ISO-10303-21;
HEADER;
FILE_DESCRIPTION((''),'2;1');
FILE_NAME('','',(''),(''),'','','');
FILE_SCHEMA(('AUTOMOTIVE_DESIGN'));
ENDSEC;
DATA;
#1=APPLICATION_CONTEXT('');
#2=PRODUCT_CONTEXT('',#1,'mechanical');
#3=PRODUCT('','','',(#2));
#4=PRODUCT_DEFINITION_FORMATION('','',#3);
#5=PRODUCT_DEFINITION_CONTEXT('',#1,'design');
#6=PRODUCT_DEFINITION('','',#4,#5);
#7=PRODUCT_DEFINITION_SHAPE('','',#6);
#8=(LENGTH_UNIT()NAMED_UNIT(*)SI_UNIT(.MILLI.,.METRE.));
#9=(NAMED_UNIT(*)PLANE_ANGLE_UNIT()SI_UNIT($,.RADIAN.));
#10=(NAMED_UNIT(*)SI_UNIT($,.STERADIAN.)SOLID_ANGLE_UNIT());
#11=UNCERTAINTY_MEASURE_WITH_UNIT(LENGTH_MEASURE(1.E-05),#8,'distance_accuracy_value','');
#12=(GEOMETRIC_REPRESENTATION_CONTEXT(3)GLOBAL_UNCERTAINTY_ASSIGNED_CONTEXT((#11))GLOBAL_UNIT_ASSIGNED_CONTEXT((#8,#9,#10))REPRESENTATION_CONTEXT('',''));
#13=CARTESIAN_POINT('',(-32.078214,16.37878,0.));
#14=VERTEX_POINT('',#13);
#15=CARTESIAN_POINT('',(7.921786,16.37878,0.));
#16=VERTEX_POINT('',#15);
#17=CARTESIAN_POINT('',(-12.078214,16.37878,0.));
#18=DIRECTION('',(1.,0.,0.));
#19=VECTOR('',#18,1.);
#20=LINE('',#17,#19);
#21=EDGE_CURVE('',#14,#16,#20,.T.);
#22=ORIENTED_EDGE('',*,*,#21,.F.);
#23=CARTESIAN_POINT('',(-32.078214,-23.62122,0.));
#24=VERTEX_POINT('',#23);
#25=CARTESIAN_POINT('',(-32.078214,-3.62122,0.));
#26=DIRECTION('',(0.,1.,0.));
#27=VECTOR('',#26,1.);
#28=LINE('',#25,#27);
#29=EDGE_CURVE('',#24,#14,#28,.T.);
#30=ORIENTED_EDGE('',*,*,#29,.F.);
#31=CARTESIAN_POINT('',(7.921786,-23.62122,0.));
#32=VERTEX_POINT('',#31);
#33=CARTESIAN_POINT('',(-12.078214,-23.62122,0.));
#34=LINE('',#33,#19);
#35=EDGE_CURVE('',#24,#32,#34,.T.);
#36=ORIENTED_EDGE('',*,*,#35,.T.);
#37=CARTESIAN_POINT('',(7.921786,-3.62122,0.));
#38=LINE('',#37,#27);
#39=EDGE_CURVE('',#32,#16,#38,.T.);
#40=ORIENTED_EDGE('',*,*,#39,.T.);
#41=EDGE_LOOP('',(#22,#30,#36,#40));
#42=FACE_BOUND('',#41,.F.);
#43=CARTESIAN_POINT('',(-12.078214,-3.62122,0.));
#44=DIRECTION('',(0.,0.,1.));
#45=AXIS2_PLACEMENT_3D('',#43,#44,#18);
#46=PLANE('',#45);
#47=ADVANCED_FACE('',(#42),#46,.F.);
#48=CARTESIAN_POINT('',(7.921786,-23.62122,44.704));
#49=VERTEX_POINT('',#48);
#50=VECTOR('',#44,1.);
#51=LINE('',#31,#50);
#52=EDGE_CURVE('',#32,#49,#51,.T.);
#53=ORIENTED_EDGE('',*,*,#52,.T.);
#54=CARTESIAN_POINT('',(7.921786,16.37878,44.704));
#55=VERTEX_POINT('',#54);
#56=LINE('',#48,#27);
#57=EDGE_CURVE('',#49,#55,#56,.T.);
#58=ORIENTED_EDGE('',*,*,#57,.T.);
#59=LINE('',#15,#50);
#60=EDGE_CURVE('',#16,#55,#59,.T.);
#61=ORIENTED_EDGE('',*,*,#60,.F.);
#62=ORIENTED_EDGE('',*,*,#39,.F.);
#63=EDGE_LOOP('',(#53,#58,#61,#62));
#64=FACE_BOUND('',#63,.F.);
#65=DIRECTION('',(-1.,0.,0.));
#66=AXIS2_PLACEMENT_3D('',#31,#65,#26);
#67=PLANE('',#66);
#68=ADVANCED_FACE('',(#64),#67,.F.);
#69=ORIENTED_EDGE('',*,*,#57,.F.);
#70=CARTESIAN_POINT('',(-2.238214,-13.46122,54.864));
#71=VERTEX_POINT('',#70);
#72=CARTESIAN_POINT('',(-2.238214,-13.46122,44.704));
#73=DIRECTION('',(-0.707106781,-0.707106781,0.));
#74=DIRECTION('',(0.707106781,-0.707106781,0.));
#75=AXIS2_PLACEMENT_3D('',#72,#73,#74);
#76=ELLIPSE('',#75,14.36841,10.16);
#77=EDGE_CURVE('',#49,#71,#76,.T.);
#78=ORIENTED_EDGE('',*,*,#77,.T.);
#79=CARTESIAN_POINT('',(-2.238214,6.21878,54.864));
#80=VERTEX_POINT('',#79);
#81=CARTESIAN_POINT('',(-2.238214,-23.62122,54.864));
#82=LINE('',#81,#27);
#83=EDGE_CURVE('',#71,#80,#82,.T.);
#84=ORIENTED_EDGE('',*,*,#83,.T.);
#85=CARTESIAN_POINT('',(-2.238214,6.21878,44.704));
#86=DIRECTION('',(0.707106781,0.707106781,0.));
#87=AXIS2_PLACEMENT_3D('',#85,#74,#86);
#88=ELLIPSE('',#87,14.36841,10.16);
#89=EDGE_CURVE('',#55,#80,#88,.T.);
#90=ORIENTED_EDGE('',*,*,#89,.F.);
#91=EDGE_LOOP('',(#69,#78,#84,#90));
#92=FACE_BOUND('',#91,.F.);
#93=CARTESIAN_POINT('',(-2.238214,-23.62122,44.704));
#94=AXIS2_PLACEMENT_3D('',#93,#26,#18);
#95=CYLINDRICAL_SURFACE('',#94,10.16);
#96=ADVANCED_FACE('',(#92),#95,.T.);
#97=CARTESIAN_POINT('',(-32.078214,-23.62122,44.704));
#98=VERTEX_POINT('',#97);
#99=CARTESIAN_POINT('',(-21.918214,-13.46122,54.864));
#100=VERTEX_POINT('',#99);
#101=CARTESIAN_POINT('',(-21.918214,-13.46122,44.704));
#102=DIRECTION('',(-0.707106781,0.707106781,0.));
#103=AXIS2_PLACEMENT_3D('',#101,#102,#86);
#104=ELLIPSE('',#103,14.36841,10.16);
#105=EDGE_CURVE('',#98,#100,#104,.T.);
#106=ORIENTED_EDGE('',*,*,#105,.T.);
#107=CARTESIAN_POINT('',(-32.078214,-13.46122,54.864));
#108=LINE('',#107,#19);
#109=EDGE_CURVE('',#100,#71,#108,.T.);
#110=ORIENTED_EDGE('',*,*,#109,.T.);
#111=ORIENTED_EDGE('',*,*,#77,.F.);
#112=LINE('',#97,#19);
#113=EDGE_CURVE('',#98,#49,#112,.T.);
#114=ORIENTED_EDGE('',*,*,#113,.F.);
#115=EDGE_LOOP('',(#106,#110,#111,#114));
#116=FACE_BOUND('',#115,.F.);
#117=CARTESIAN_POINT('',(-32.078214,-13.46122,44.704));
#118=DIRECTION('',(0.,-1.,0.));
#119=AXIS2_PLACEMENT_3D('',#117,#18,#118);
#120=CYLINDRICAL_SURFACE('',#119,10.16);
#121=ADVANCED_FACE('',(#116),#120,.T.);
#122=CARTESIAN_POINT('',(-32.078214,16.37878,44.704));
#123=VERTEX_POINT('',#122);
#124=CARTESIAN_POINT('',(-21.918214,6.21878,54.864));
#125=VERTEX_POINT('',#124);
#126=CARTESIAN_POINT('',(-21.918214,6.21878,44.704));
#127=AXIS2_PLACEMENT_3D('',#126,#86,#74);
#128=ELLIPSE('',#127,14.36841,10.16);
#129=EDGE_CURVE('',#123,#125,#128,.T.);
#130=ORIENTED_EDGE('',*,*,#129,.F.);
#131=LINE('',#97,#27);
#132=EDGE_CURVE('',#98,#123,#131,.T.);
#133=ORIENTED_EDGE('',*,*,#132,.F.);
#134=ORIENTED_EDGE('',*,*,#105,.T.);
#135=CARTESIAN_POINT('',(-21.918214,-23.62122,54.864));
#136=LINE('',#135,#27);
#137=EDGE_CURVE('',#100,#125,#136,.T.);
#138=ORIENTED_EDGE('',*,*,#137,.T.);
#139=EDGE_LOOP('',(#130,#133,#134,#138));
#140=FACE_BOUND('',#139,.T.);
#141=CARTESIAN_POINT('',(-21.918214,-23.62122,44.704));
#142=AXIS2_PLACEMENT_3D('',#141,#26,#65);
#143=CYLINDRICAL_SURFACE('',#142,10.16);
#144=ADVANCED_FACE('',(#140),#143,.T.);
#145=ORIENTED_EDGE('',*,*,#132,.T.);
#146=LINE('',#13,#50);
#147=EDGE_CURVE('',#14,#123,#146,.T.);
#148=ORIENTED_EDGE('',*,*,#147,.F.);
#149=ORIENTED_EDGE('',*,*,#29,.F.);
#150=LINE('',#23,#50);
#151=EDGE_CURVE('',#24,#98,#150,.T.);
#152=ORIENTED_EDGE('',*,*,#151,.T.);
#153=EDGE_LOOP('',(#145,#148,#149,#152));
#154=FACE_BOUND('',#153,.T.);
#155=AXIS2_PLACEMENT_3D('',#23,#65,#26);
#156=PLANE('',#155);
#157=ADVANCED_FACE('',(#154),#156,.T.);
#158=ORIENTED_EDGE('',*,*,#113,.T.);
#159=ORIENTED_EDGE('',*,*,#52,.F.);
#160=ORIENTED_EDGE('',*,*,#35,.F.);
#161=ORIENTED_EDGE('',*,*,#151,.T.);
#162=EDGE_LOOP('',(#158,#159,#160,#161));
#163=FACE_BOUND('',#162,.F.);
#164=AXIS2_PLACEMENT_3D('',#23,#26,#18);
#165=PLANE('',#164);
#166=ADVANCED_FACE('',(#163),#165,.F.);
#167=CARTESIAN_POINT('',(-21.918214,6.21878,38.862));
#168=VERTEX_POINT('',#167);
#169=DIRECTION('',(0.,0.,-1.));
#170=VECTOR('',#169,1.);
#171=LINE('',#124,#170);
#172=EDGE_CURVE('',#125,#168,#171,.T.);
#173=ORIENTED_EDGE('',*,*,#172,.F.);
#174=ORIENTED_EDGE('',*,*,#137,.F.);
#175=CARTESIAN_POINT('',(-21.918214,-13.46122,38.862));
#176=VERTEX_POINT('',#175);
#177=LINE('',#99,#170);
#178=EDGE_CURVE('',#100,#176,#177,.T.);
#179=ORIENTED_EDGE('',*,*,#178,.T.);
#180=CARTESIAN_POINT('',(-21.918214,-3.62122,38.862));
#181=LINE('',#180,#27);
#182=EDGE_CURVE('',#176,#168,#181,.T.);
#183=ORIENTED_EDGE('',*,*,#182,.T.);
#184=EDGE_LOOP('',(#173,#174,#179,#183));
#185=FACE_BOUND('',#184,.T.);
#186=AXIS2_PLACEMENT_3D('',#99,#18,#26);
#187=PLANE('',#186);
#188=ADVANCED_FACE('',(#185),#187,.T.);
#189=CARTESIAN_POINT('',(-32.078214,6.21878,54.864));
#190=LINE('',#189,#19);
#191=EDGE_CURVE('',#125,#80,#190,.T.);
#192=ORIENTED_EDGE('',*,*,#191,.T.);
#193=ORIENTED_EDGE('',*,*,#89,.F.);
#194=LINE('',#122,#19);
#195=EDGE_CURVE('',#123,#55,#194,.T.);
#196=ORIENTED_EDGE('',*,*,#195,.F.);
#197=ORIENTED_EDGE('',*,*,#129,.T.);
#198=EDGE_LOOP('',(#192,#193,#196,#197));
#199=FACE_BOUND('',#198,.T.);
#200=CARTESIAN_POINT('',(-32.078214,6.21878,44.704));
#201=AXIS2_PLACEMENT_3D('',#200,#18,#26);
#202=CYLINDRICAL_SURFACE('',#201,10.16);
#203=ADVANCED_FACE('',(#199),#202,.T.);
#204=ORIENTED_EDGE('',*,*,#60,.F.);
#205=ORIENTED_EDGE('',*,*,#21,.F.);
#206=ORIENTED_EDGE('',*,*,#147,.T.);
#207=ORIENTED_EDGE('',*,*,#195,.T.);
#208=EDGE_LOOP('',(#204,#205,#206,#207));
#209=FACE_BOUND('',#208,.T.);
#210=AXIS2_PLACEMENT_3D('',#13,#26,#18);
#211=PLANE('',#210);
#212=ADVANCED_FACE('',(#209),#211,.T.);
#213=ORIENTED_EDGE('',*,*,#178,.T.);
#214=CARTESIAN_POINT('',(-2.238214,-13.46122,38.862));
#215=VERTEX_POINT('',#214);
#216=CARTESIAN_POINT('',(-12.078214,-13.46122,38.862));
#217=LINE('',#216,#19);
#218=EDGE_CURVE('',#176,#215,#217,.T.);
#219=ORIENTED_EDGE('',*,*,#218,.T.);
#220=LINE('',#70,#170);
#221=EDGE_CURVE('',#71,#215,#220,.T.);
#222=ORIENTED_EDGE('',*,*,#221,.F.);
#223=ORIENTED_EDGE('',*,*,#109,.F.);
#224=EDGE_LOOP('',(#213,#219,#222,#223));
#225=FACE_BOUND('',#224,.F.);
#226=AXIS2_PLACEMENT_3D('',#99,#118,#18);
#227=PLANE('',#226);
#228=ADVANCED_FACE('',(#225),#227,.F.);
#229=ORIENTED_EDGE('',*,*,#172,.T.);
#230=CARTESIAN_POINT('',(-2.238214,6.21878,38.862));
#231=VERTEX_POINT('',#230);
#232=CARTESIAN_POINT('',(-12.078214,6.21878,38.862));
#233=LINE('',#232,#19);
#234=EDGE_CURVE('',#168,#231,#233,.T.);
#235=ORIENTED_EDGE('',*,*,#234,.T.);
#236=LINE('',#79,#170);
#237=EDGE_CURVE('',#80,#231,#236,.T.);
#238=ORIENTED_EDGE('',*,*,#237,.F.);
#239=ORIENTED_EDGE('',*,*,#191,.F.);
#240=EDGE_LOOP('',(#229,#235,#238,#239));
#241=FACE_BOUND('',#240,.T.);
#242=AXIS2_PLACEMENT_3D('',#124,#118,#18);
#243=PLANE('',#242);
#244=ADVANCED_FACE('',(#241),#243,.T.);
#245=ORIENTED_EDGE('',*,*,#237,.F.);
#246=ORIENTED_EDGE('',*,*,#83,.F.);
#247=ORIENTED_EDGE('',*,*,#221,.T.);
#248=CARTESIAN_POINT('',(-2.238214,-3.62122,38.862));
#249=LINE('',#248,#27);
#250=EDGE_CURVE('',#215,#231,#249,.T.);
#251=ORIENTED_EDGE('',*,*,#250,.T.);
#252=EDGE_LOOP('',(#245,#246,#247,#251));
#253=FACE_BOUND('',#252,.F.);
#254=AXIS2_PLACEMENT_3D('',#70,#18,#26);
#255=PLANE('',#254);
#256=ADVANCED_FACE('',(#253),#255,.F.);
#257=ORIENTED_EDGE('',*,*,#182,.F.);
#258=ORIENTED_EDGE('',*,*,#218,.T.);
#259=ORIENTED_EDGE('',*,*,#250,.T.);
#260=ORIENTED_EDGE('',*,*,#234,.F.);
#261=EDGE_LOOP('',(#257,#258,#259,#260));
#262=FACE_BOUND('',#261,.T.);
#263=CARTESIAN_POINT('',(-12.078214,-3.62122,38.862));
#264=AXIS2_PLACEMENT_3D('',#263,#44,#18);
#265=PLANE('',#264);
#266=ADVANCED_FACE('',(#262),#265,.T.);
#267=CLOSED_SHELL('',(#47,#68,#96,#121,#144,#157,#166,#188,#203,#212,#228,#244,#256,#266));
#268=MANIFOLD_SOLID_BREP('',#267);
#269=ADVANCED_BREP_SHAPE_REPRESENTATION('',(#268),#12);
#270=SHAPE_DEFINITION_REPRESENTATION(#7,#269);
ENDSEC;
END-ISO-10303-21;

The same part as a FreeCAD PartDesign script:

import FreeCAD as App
import Part
import Sketcher

V = App.Vector
Q = App.Units.Quantity


def edges_at(feature, points):
    """Names of the edges that pass closest to the given points."""
    edges = feature.Shape.Edges
    near = lambda p: min(range(len(edges)), key=lambda i: edges[i].distToShape(Part.Vertex(*p))[0])
    return sorted({f"Edge{near(p) + 1}" for p in points})


def add_polygon(sketch, points):
    """Adds a closed chain of lines whose ends are joined by coincident constraints."""
    first, n = sketch.GeometryCount, len(points)
    for a, b in zip(points, points[1:] + points[:1]):
        sketch.addGeometry(Part.LineSegment(App.Vector(*a, 0), App.Vector(*b, 0)), False)
    for i in range(n):
        sketch.addConstraint(Sketcher.Constraint("Coincident", first + i, 2, first + (i + 1) % n, 1))

doc = App.newDocument("Part")
body = doc.addObject("PartDesign::Body", "Body")

# Sketch on XY plane
sketch1 = doc.addObject("Sketcher::SketchObject", "Sketch")
body.addObject(sketch1)
sketch1.AttachmentSupport = (doc.XY_Plane, [""])
sketch1.MapMode = "FlatFace"
add_polygon(sketch1, [(-32, 16), (-32, -24), (8, -24), (8, 16)])  # lines 0-3
sketch1.addConstraint(Sketcher.Constraint("Vertical", 0))
sketch1.addConstraint(Sketcher.Constraint("Horizontal", 1))
sketch1.addConstraint(Sketcher.Constraint("Vertical", 2))
sketch1.addConstraint(Sketcher.Constraint("Horizontal", 3))
sketch1.addConstraint(Sketcher.Constraint("Equal", 3, 0))
sketch1.addConstraint(Sketcher.Constraint("DistanceX", 1, 1, 1, 2, 40.0))
sketch1.addConstraint(Sketcher.Constraint("DistanceY", 0, 2, -1, 1, 23.62122))
sketch1.addConstraint(Sketcher.Constraint("DistanceX", 0, 2, -1, 1, 32.078214))
pad1 = doc.addObject("PartDesign::Pad", "Pad")
body.addObject(pad1)
pad1.Profile = sketch1
pad1.Length = Q("2.16 in")
doc.recompute()

fillet = doc.addObject("PartDesign::Fillet", "Fillet")
body.addObject(fillet)
fillet.Base = (pad1, edges_at(pad1, [
    (-12.078, -23.621, 54.864),
    (7.922, -3.621, 54.864),
    (-12.078, 16.379, 54.864),
    (-32.078, -3.621, 54.864),
]))
fillet.Radius = Q("0.4 in")

# Sketch on XY plane
sketch2 = doc.addObject("Sketcher::SketchObject", "Sketch001")
body.addObject(sketch2)
sketch2.AttachmentSupport = (doc.XY_Plane, [""])
sketch2.MapMode = "FlatFace"
sketch2.AttachmentOffset = App.Placement(V(0, 0, 2.16 * 25.4), App.Rotation())
add_polygon(sketch2, [(-22, 6), (-22, -13), (-2, -13), (-2, 6)])  # lines 0-3
sketch2.addConstraint(Sketcher.Constraint("Vertical", 0))
sketch2.addConstraint(Sketcher.Constraint("Horizontal", 1))
sketch2.addConstraint(Sketcher.Constraint("Vertical", 2))
sketch2.addConstraint(Sketcher.Constraint("Horizontal", 3))
sketch2.addConstraint(Sketcher.Constraint("Equal", 3, 0))
sketch2.addConstraint(Sketcher.Constraint("DistanceX", 1, 1, 1, 2, 19.68))
sketch2.addConstraint(Sketcher.Constraint("DistanceY", 0, 2, -1, 1, 13.46122))
sketch2.addConstraint(Sketcher.Constraint("DistanceX", 0, 2, -1, 1, 21.918214))
pocket1 = doc.addObject("PartDesign::Pocket", "Pocket")
body.addObject(pocket1)
pocket1.Profile = sketch2
pocket1.Length = Q("0.63 in")

doc.recompute()
